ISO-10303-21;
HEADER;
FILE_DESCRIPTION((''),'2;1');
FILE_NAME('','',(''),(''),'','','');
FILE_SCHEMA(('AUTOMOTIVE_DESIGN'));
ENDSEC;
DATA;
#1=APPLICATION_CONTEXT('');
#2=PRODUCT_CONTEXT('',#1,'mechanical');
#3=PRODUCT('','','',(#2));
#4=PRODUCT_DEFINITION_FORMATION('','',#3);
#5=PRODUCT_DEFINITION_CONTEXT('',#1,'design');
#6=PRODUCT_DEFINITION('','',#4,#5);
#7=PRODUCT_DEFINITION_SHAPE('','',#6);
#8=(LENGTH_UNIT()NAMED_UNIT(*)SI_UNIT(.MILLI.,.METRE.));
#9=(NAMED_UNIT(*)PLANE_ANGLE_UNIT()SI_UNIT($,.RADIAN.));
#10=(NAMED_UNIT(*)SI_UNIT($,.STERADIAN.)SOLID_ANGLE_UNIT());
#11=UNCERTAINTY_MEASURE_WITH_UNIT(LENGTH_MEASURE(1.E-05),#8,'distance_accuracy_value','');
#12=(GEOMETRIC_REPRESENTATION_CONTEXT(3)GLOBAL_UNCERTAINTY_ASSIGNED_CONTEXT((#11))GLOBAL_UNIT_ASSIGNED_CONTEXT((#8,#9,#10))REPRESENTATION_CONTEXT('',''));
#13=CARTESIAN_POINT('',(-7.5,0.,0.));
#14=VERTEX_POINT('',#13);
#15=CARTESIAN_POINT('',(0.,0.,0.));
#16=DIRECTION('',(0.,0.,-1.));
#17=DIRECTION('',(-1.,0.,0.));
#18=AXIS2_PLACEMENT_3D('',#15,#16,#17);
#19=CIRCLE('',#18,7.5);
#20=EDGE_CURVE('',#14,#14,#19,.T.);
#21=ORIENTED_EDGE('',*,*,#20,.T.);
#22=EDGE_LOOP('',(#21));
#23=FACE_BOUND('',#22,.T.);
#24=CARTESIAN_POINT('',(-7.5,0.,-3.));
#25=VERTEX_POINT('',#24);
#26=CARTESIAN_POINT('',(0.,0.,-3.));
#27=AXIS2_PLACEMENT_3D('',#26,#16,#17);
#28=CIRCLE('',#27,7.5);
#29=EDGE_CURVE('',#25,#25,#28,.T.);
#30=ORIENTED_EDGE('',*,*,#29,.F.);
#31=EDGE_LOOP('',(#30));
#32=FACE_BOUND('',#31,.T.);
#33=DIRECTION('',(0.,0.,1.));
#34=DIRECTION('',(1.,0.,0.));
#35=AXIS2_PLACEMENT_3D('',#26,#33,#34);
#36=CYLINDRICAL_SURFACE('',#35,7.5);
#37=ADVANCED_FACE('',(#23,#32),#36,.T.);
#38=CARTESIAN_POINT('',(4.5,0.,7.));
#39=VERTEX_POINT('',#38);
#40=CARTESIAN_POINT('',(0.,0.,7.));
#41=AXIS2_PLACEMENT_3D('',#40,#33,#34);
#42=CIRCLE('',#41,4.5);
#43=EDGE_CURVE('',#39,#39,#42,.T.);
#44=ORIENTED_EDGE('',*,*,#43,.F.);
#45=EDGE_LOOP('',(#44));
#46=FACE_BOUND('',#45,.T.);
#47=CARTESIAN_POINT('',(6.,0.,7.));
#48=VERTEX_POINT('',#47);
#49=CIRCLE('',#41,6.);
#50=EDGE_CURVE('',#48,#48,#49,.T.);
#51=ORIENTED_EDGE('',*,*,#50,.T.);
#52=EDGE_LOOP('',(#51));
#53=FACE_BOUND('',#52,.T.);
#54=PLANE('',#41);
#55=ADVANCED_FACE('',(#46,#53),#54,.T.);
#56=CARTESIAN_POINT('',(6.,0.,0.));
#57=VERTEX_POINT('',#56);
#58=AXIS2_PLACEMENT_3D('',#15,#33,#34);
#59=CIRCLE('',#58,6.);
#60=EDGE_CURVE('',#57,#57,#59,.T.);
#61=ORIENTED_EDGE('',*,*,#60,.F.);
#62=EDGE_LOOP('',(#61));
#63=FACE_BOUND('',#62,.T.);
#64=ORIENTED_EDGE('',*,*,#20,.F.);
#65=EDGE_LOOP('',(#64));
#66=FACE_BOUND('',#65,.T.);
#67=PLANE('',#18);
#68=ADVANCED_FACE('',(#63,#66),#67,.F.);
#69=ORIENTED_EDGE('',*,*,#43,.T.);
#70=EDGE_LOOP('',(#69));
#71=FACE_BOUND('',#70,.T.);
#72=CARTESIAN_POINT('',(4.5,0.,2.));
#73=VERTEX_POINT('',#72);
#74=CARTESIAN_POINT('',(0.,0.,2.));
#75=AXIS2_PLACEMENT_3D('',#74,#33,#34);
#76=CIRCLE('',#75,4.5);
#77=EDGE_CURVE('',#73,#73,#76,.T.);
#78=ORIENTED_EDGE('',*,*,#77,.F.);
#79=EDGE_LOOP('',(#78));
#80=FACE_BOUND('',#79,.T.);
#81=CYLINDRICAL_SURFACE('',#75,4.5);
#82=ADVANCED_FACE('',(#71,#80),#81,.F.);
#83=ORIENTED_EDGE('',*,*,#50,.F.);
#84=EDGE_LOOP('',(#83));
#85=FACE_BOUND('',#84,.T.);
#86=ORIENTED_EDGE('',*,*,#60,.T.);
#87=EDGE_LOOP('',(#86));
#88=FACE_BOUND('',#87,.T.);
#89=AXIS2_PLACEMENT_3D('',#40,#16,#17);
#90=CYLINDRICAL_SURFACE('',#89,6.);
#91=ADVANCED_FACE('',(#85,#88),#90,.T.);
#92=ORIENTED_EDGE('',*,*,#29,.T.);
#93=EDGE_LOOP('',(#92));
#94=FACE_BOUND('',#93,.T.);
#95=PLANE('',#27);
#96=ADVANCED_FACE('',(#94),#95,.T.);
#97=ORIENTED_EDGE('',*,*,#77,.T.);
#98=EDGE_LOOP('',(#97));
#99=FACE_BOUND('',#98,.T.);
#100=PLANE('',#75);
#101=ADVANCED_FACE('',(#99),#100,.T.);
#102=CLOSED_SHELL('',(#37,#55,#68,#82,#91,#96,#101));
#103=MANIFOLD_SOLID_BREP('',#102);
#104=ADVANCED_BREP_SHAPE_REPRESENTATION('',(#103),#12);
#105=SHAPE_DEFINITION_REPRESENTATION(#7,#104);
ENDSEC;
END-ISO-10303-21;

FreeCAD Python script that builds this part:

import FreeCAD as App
import Part
import Sketcher
from FreeCAD import Vector
Q = App.Units.Quantity

doc = App.newDocument("Part")
body = doc.addObject("PartDesign::Body", "Body")

sketch1 = body.newObject("Sketcher::SketchObject", "Sketch")
sketch1.AttachmentSupport = (doc.getObject("XY_Plane"), [""])
sketch1.MapMode = "FlatFace"
sketch1.addGeometry(Part.Circle(Vector(0, 0, 0), Vector(0, 0, 1), 6), False)
sketch1.addConstraint([
    Sketcher.Constraint("Coincident", 0, 3, -1, 1),
    Sketcher.Constraint("Diameter", 0, Q("12 mm")),
])
pad1 = body.newObject("PartDesign::Pad", "Pad")
pad1.Profile = sketch1
pad1.Length = 7

sketch2 = body.newObject("Sketcher::SketchObject", "Sketch001")
sketch2.AttachmentSupport = (doc.getObject("XY_Plane"), [""])
sketch2.MapMode = "FlatFace"
sketch2.AttachmentOffset = App.Placement(Vector(0, 0, 7), App.Rotation())
sketch2.addGeometry(Part.Circle(Vector(0, 0, 0), Vector(0, 0, 1), 4.5), False)
sketch2.addConstraint([
    Sketcher.Constraint("Coincident", 0, 3, -1, 1),
    Sketcher.Constraint("Diameter", 0, Q("9 mm")),
])
pocket1 = body.newObject("PartDesign::Pocket", "Pocket")
pocket1.Profile = sketch2
pocket1.Length = 5

sketch3 = body.newObject("Sketcher::SketchObject", "Sketch002")
sketch3.AttachmentSupport = (doc.getObject("XY_Plane"), [""])
sketch3.MapMode = "FlatFace"
sketch3.addGeometry(Part.Circle(Vector(0, 0, 0), Vector(0, 0, 1), 7.5), False)
sketch3.addConstraint([
    Sketcher.Constraint("Coincident", 0, 3, -1, 1),
    Sketcher.Constraint("Diameter", 0, Q("15 mm")),
])
pad2 = body.newObject("PartDesign::Pad", "Pad001")
pad2.Profile = sketch3
pad2.Length = 3
pad2.Reversed = True

doc.recompute()
